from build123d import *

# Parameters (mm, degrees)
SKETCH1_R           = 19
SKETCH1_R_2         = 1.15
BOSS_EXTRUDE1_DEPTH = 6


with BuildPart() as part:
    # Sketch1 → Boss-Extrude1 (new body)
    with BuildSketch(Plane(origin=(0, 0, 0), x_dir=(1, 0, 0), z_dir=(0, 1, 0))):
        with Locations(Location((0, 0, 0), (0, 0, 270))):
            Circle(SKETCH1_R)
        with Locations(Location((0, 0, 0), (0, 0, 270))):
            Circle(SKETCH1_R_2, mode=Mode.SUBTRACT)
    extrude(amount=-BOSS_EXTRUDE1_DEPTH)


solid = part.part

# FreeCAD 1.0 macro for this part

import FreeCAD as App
import Part
import Sketcher

V = App.Vector

doc = App.newDocument("Part")
body = doc.addObject("PartDesign::Body", "Body")

# Sketch on XZ plane
sketch1 = body.newObject("Sketcher::SketchObject", "Sketch")
sketch1.AttachmentSupport = (doc.getObject("XZ_Plane"), [""])
sketch1.MapMode = "FlatFace"
sketch1.addGeometry([
    Part.Circle(V(0, 0, 0), V(0, 0, 1), 19),
    Part.Circle(V(0, 0, 0), V(0, 0, 1), 1.1),
], False)
sketch1.addConstraint([
    Sketcher.Constraint("Coincident", 0, 3, -1, 1),
    Sketcher.Constraint("Coincident", 1, 3, -1, 1),
    Sketcher.Constraint("Diameter", 0, 38.0),
    Sketcher.Constraint("Diameter", 1, 2.3),
])
pad1 = body.newObject("PartDesign::Pad", "Pad")
pad1.Profile = sketch1
pad1.Length = 6

doc.recompute()
